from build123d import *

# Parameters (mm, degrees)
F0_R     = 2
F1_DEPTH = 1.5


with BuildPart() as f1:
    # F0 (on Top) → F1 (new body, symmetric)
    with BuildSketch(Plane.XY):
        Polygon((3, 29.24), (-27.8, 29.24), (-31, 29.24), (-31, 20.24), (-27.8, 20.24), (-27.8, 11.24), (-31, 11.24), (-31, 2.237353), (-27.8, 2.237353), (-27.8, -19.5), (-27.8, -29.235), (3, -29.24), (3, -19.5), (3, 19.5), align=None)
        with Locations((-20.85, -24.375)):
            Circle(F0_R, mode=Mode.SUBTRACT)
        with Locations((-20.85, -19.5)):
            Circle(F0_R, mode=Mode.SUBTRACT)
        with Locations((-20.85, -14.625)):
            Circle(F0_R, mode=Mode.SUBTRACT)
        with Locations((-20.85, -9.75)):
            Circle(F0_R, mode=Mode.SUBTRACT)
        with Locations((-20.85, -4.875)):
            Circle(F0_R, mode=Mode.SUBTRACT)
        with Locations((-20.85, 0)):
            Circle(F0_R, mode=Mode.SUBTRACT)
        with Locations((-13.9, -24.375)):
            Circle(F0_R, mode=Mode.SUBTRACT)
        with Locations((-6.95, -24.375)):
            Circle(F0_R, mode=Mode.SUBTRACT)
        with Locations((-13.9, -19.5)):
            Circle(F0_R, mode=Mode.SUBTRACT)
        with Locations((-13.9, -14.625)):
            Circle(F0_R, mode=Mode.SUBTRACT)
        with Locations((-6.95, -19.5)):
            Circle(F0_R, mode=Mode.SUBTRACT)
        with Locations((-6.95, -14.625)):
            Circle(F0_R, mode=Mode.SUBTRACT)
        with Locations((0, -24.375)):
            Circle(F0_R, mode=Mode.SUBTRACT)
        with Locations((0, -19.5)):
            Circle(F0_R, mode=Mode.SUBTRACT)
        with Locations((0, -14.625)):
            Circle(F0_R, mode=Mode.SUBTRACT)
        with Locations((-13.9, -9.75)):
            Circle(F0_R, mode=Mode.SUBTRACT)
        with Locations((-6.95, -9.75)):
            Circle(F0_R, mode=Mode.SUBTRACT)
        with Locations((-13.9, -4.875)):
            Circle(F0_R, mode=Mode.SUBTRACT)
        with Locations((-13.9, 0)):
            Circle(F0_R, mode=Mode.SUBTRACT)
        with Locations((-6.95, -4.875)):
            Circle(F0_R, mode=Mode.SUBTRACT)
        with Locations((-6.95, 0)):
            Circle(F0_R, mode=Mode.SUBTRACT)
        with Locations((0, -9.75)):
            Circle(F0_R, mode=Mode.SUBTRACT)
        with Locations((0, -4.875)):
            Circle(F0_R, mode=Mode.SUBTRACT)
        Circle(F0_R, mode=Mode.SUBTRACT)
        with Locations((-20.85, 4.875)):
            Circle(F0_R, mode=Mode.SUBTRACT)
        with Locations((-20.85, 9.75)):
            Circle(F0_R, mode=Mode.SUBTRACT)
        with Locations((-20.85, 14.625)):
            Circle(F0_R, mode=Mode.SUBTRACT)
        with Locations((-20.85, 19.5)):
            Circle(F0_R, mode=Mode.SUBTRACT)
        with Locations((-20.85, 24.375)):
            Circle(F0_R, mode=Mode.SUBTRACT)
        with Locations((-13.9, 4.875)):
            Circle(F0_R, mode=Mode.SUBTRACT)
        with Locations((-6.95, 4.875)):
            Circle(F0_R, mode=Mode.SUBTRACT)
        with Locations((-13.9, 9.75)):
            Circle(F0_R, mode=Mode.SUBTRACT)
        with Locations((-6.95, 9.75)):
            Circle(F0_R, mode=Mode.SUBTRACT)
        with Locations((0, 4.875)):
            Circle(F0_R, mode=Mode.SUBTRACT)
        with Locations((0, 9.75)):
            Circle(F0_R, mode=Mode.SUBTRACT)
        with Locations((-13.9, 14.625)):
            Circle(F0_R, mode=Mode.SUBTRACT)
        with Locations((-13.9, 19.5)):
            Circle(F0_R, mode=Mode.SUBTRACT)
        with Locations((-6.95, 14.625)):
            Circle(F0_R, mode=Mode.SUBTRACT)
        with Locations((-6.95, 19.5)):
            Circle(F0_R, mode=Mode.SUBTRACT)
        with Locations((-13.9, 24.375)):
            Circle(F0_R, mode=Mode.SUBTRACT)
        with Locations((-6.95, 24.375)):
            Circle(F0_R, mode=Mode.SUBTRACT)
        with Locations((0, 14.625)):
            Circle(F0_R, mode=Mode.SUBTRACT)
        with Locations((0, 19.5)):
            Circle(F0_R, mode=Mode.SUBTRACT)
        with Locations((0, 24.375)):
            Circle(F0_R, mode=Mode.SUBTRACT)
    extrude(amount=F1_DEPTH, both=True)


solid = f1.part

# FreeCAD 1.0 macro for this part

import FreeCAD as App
import Part
import Sketcher
from FreeCAD import Vector
Q = App.Units.Quantity

doc = App.newDocument("Part")
body = doc.addObject("PartDesign::Body", "Body")

# Sketch on XY plane
sketch1 = body.newObject("Sketcher::SketchObject", "Sketch")
sketch1.AttachmentSupport = (doc.getObject("XY_Plane"), [""])
sketch1.MapMode = "FlatFace"
sketch1.addGeometry([
    Part.LineSegment(Vector(3, 29.2, 0), Vector(-31, 29.2, 0)),  # 0
    Part.LineSegment(Vector(-31, 29.2, 0), Vector(-31, 20.2, 0)),  # 1
    Part.LineSegment(Vector(-31, 20.2, 0), Vector(-27.8, 20.2, 0)),  # 2
    Part.LineSegment(Vector(-27.8, 20.2, 0), Vector(-27.8, 11.2, 0)),  # 3
    Part.LineSegment(Vector(-27.8, 11.2, 0), Vector(-31, 11.2, 0)),  # 4
    Part.LineSegment(Vector(-31, 11.2, 0), Vector(-31, 2.2, 0)),  # 5
    Part.LineSegment(Vector(-31, 2.2, 0), Vector(-27.8, 2.2, 0)),  # 6
    Part.LineSegment(Vector(-27.8, 2.2, 0), Vector(-27.8, -29.2, 0)),  # 7
    Part.LineSegment(Vector(-27.8, -29.2, 0), Vector(3, -29.2, 0)),  # 8
    Part.LineSegment(Vector(3, -29.2, 0), Vector(3, 29.2, 0)),  # 9
    Part.Circle(Vector(-20.9, -24.4, 0), Vector(0, 0, 1), 2),  # 10
    Part.Circle(Vector(-20.9, -19.5, 0), Vector(0, 0, 1), 2),  # 11
    Part.Circle(Vector(-20.9, -14.6, 0), Vector(0, 0, 1), 2),  # 12
    Part.Circle(Vector(-13.9, -24.4, 0), Vector(0, 0, 1), 2),  # 13
    Part.Circle(Vector(-13.9, -19.5, 0), Vector(0, 0, 1), 2),  # 14
    Part.Circle(Vector(-13.9, -14.6, 0), Vector(0, 0, 1), 2),  # 15
    Part.Circle(Vector(-20.9, -9.8, 0), Vector(0, 0, 1), 2),  # 16
    Part.Circle(Vector(-20.9, -4.9, 0), Vector(0, 0, 1), 2),  # 17
    Part.Circle(Vector(-13.9, -9.8, 0), Vector(0, 0, 1), 2),  # 18
    Part.Circle(Vector(-13.9, -4.9, 0), Vector(0, 0, 1), 2),  # 19
    Part.Circle(Vector(-7, -24.4, 0), Vector(0, 0, 1), 2),  # 20
    Part.Circle(Vector(-7, -19.5, 0), Vector(0, 0, 1), 2),  # 21
    Part.Circle(Vector(-7, -14.6, 0), Vector(0, 0, 1), 2),  # 22
    Part.Circle(Vector(0, -24.4, 0), Vector(0, 0, 1), 2),  # 23
    Part.Circle(Vector(0, -19.5, 0), Vector(0, 0, 1), 2),  # 24
    Part.Circle(Vector(0, -14.6, 0), Vector(0, 0, 1), 2),  # 25
    Part.Circle(Vector(-7, -9.8, 0), Vector(0, 0, 1), 2),  # 26
    Part.Circle(Vector(-7, -4.9, 0), Vector(0, 0, 1), 2),  # 27
    Part.Circle(Vector(0, -9.8, 0), Vector(0, 0, 1), 2),  # 28
    Part.Circle(Vector(0, -4.9, 0), Vector(0, 0, 1), 2),  # 29
    Part.Circle(Vector(-20.9, 0, 0), Vector(0, 0, 1), 2),  # 30
    Part.Circle(Vector(-20.9, 4.9, 0), Vector(0, 0, 1), 2),  # 31
    Part.Circle(Vector(-20.9, 9.8, 0), Vector(0, 0, 1), 2),  # 32
    Part.Circle(Vector(-13.9, 0, 0), Vector(0, 0, 1), 2),  # 33
    Part.Circle(Vector(-13.9, 4.9, 0), Vector(0, 0, 1), 2),  # 34
    Part.Circle(Vector(-13.9, 9.8, 0), Vector(0, 0, 1), 2),  # 35
    Part.Circle(Vector(-20.9, 14.6, 0), Vector(0, 0, 1), 2),  # 36
    Part.Circle(Vector(-20.9, 19.5, 0), Vector(0, 0, 1), 2),  # 37
    Part.Circle(Vector(-20.9, 24.4, 0), Vector(0, 0, 1), 2),  # 38
    Part.Circle(Vector(-13.9, 14.6, 0), Vector(0, 0, 1), 2),  # 39
    Part.Circle(Vector(-13.9, 19.5, 0), Vector(0, 0, 1), 2),  # 40
    Part.Circle(Vector(-13.9, 24.4, 0), Vector(0, 0, 1), 2),  # 41
    Part.Circle(Vector(-7, 0, 0), Vector(0, 0, 1), 2),  # 42
    Part.Circle(Vector(-7, 4.9, 0), Vector(0, 0, 1), 2),  # 43
    Part.Circle(Vector(-7, 9.8, 0), Vector(0, 0, 1), 2),  # 44
    Part.Circle(Vector(0, 0, 0), Vector(0, 0, 1), 2),  # 45
    Part.Circle(Vector(0, 4.9, 0), Vector(0, 0, 1), 2),  # 46
    Part.Circle(Vector(0, 9.8, 0), Vector(0, 0, 1), 2),  # 47
    Part.Circle(Vector(-7, 14.6, 0), Vector(0, 0, 1), 2),  # 48
    Part.Circle(Vector(-7, 19.5, 0), Vector(0, 0, 1), 2),  # 49
    Part.Circle(Vector(-7, 24.4, 0), Vector(0, 0, 1), 2),  # 50
    Part.Circle(Vector(0, 14.6, 0), Vector(0, 0, 1), 2),  # 51
    Part.Circle(Vector(0, 19.5, 0), Vector(0, 0, 1), 2),  # 52
    Part.Circle(Vector(0, 24.4, 0), Vector(0, 0, 1), 2),  # 53
], False)
sketch1.addConstraint([
    Sketcher.Constraint("Coincident", 0, 2, 1, 1),
    Sketcher.Constraint("Coincident", 1, 2, 2, 1),
    Sketcher.Constraint("Coincident", 2, 2, 3, 1),
    Sketcher.Constraint("Coincident", 3, 2, 4, 1),
    Sketcher.Constraint("Coincident", 4, 2, 5, 1),
    Sketcher.Constraint("Coincident", 5, 2, 6, 1),
    Sketcher.Constraint("Coincident", 6, 2, 7, 1),
    Sketcher.Constraint("Coincident", 7, 2, 8, 1),
    Sketcher.Constraint("Coincident", 8, 2, 9, 1),
    Sketcher.Constraint("Coincident", 9, 2, 0, 1),
    Sketcher.Constraint("Horizontal", 0),
    Sketcher.Constraint("Vertical", 1),
    Sketcher.Constraint("Horizontal", 2),
    Sketcher.Constraint("Vertical", 3),
    Sketcher.Constraint("Horizontal", 4),
    Sketcher.Constraint("Vertical", 5),
    Sketcher.Constraint("Horizontal", 6),
    Sketcher.Constraint("Vertical", 7),
    Sketcher.Constraint("Vertical", 9),
    Sketcher.Constraint("Coincident", 45, 3, -1, 1),
    Sketcher.Constraint("Equal", 10, 11),
    Sketcher.Constraint("Equal", 11, 12),
    Sketcher.Constraint("Equal", 12, 13),
    Sketcher.Constraint("Equal", 13, 14),
    Sketcher.Constraint("Equal", 14, 15),
    Sketcher.Constraint("Equal", 15, 16),
    Sketcher.Constraint("Equal", 16, 17),
    Sketcher.Constraint("Equal", 17, 18),
    Sketcher.Constraint("Equal", 18, 19),
    Sketcher.Constraint("Equal", 19, 20),
    Sketcher.Constraint("Equal", 20, 21),
    Sketcher.Constraint("Equal", 21, 22),
    Sketcher.Constraint("Equal", 22, 23),
    Sketcher.Constraint("Equal", 23, 24),
    Sketcher.Constraint("Equal", 24, 25),
    Sketcher.Constraint("Equal", 25, 26),
    Sketcher.Constraint("Equal", 26, 27),
    Sketcher.Constraint("Equal", 27, 28),
    Sketcher.Constraint("Equal", 28, 29),
    Sketcher.Constraint("Equal", 29, 30),
    Sketcher.Constraint("Equal", 30, 31),
    Sketcher.Constraint("Equal", 31, 32),
    Sketcher.Constraint("Equal", 32, 33),
    Sketcher.Constraint("Equal", 33, 34),
    Sketcher.Constraint("Equal", 34, 35),
    Sketcher.Constraint("Equal", 35, 36),
    Sketcher.Constraint("Equal", 36, 37),
    Sketcher.Constraint("Equal", 37, 38),
    Sketcher.Constraint("Equal", 38, 39),
    Sketcher.Constraint("Equal", 39, 40),
    Sketcher.Constraint("Equal", 40, 41),
    Sketcher.Constraint("Equal", 41, 42),
    Sketcher.Constraint("Equal", 42, 43),
    Sketcher.Constraint("Equal", 43, 44),
    Sketcher.Constraint("Equal", 44, 45),
    Sketcher.Constraint("Equal", 45, 46),
    Sketcher.Constraint("Equal", 46, 47),
    Sketcher.Constraint("Equal", 47, 48),
    Sketcher.Constraint("Equal", 48, 49),
    Sketcher.Constraint("Equal", 49, 50),
    Sketcher.Constraint("Equal", 50, 51),
    Sketcher.Constraint("Equal", 51, 52),
    Sketcher.Constraint("Equal", 52, 53),
    Sketcher.Constraint("Symmetric", 29, 3, 46, 3, -1, 1),
    Sketcher.Constraint("Symmetric", 28, 3, 47, 3, -1, 1),
    Sketcher.Constraint("Symmetric", 25, 3, 51, 3, -1, 1),
    Sketcher.Constraint("Symmetric", 24, 3, 52, 3, -1, 1),
    Sketcher.Constraint("Symmetric", 23, 3, 53, 3, -1, 1),
    Sketcher.Constraint("Symmetric", 17, 3, 31, 3, -1),
    Sketcher.Constraint("Symmetric", 16, 3, 32, 3, -1),
    Sketcher.Constraint("Symmetric", 19, 3, 34, 3, -1),
    Sketcher.Constraint("Symmetric", 18, 3, 35, 3, -1),
    Sketcher.Constraint("Symmetric", 12, 3, 36, 3, -1),
    Sketcher.Constraint("Symmetric", 11, 3, 37, 3, -1),
    Sketcher.Constraint("Symmetric", 10, 3, 38, 3, -1),
    Sketcher.Constraint("Symmetric", 15, 3, 39, 3, -1),
    Sketcher.Constraint("Symmetric", 14, 3, 40, 3, -1),
    Sketcher.Constraint("Symmetric", 13, 3, 41, 3, -1),
    Sketcher.Constraint("Symmetric", 27, 3, 43, 3, -1),
    Sketcher.Constraint("Symmetric", 26, 3, 44, 3, -1),
    Sketcher.Constraint("Symmetric", 22, 3, 48, 3, -1),
    Sketcher.Constraint("Symmetric", 21, 3, 49, 3, -1),
    Sketcher.Constraint("Symmetric", 20, 3, 50, 3, -1),
    Sketcher.Constraint("PointOnObject", 23, 3, -2),
    Sketcher.Constraint("PointOnObject", 24, 3, -2),
    Sketcher.Constraint("PointOnObject", 25, 3, -2),
    Sketcher.Constraint("PointOnObject", 28, 3, -2),
    Sketcher.Constraint("PointOnObject", 29, 3, -2),
    Sketcher.Constraint("PointOnObject", 30, 3, -1),
    Sketcher.Constraint("PointOnObject", 33, 3, -1),
    Sketcher.Constraint("PointOnObject", 42, 3, -1),
    Sketcher.Constraint("Horizontal", 10, 3, 13, 3),
    Sketcher.Constraint("Horizontal", 11, 3, 14, 3),
    Sketcher.Constraint("Horizontal", 12, 3, 15, 3),
    Sketcher.Constraint("Horizontal", 16, 3, 18, 3),
    Sketcher.Constraint("Horizontal", 17, 3, 19, 3),
    Sketcher.Constraint("Horizontal", 13, 3, 20, 3),
    Sketcher.Constraint("Horizontal", 14, 3, 21, 3),
    Sketcher.Constraint("Horizontal", 15, 3, 22, 3),
    Sketcher.Constraint("Horizontal", 20, 3, 23, 3),
    Sketcher.Constraint("Horizontal", 21, 3, 24, 3),
    Sketcher.Constraint("Horizontal", 22, 3, 25, 3),
    Sketcher.Constraint("Horizontal", 18, 3, 26, 3),
    Sketcher.Constraint("Horizontal", 19, 3, 27, 3),
    Sketcher.Constraint("Horizontal", 26, 3, 28, 3),
    Sketcher.Constraint("Horizontal", 27, 3, 29, 3),
    Sketcher.Constraint("Vertical", 10, 3, 11, 3),
    Sketcher.Constraint("Vertical", 11, 3, 12, 3),
    Sketcher.Constraint("Vertical", 13, 3, 14, 3),
    Sketcher.Constraint("Vertical", 14, 3, 15, 3),
    Sketcher.Constraint("Vertical", 12, 3, 16, 3),
    Sketcher.Constraint("Vertical", 16, 3, 17, 3),
    Sketcher.Constraint("Vertical", 15, 3, 18, 3),
    Sketcher.Constraint("Vertical", 18, 3, 19, 3),
    Sketcher.Constraint("Vertical", 20, 3, 21, 3),
    Sketcher.Constraint("Vertical", 21, 3, 22, 3),
    Sketcher.Constraint("Vertical", 22, 3, 26, 3),
    Sketcher.Constraint("Vertical", 26, 3, 27, 3),
    Sketcher.Constraint("Vertical", 17, 3, 30, 3),
    Sketcher.Constraint("Vertical", 19, 3, 33, 3),
    Sketcher.Constraint("Vertical", 27, 3, 42, 3),
    Sketcher.Constraint("Vertical", 1, 2, 4, 2),
    Sketcher.Constraint("Vertical", 3, 2, 6, 2),
    Sketcher.Constraint("Equal", 1, 3),
    Sketcher.Constraint("Diameter", 10, Q("4 mm")),
    Sketcher.Constraint("DistanceX", 0, 2, 0, 1, Q("34 mm")),
    Sketcher.Constraint("DistanceY", 1, 2, 1, 1, Q("9 mm")),
    Sketcher.Constraint("DistanceX", 2, 1, 2, 2, Q("3.2 mm")),
    Sketcher.Constraint("DistanceX", 0, 2, -1, 1, Q("31 mm")),
    Sketcher.Constraint("DistanceY", 9, 1, 9, 2, Q("58.48 mm")),
    Sketcher.Constraint("DistanceY", 11, 3, -1, 1, Q("19.5 mm")),
    Sketcher.Constraint("DistanceX", 13, 3, -1, 1, Q("13.9 mm")),
    Sketcher.Constraint("DistanceX", 10, 3, 20, 3, Q("13.9 mm")),
    Sketcher.Constraint("DistanceY", 16, 3, 32, 3, Q("19.5 mm")),
    Sketcher.Constraint("DistanceY", 31, 3, 38, 3, Q("19.5 mm")),
    Sketcher.Constraint("DistanceX", 10, 3, -1, 1, Q("20.85 mm")),
    Sketcher.Constraint("DistanceY", -1, 1, 0, 2, Q("29.24 mm")),
    Sketcher.Constraint("DistanceY", 10, 3, 12, 3, Q("9.75 mm")),
    Sketcher.Constraint("DistanceY", 17, 3, 31, 3, Q("9.75 mm")),
    Sketcher.Constraint("DistanceY", 7, 2, 10, 3, Q("4.86 mm")),
    Sketcher.Constraint("DistanceY", 5, 2, 5, 1, Q("9.002647 mm")),
])
pad1 = body.newObject("PartDesign::Pad", "Pad")
pad1.Profile = sketch1
pad1.Length = 3
pad1.Midplane = True

doc.recompute()
